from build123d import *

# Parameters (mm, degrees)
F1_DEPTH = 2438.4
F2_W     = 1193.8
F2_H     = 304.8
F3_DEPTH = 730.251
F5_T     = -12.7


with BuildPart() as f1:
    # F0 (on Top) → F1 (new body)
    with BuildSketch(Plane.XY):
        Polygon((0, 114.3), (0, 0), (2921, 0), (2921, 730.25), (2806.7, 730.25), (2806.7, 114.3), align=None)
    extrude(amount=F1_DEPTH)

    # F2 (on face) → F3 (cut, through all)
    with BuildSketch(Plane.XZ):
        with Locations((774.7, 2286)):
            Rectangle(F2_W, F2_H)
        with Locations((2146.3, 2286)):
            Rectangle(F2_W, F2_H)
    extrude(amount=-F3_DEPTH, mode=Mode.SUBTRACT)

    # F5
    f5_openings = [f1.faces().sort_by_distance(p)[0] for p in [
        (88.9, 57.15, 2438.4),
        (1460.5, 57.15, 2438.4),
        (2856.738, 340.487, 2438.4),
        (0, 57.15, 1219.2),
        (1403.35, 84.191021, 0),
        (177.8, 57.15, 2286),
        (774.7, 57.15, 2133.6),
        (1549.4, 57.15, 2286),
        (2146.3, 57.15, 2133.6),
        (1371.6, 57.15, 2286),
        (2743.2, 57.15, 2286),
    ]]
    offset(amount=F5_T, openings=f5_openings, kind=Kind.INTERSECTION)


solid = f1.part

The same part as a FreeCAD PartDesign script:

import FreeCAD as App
import Part
import Sketcher
Q = App.Units.Quantity


def faces_at(feature, points):
    """Names of the faces that lie closest to the given points."""
    faces = feature.Shape.Faces
    near = lambda p: min(range(len(faces)), key=lambda i: faces[i].distToShape(Part.Vertex(*p))[0])
    return sorted({f"Face{near(p) + 1}" for p in points})


def add_polygon(sketch, points):
    """Adds a closed chain of lines whose ends are joined by coincident constraints."""
    first, n = sketch.GeometryCount, len(points)
    for a, b in zip(points, points[1:] + points[:1]):
        sketch.addGeometry(Part.LineSegment(App.Vector(*a, 0), App.Vector(*b, 0)), False)
    for i in range(n):
        sketch.addConstraint(Sketcher.Constraint("Coincident", first + i, 2, first + (i + 1) % n, 1))

doc = App.newDocument("Part")
body = doc.addObject("PartDesign::Body", "Body")

# Sketch on XY plane
sketch1 = body.newObject("Sketcher::SketchObject", "Sketch")
sketch1.AttachmentSupport = (doc.getObject("XY_Plane"), [""])
sketch1.MapMode = "FlatFace"
add_polygon(sketch1, [(0, 114.3), (0, 0), (2921, 0), (2921, 730.25), (2806.7, 730.25), (2806.7, 114.3)])  # lines 0-5
sketch1.addConstraint([
    Sketcher.Constraint("Vertical", 0),
    Sketcher.Constraint("Horizontal", 1),
    Sketcher.Constraint("Vertical", 2),
    Sketcher.Constraint("Horizontal", 3),
    Sketcher.Constraint("Vertical", 4),
    Sketcher.Constraint("Horizontal", 5),
    Sketcher.Constraint("Coincident", 0, 2, -1, 1),
    Sketcher.Constraint("Equal", 3, 0),
    Sketcher.Constraint("DistanceX", 1, 1, 1, 2, Q("115 in")),
    Sketcher.Constraint("DistanceX", 3, 2, 3, 1, Q("4.5 in")),
    Sketcher.Constraint("DistanceY", 2, 1, 2, 2, Q("28.75 in")),
])
pad1 = body.newObject("PartDesign::Pad", "Pad")
pad1.Profile = sketch1
pad1.Length = Q("96 in")

# Sketch on XZ plane
sketch2 = body.newObject("Sketcher::SketchObject", "Sketch001")
sketch2.AttachmentSupport = (doc.getObject("XZ_Plane"), [""])
sketch2.MapMode = "FlatFace"
add_polygon(sketch2, [(177.8, 2438.4), (177.8, 2133.6), (1371.6, 2133.6), (1371.6, 2438.4)])  # lines 0-3
add_polygon(sketch2, [(1549.4, 2438.4), (1549.4, 2133.6), (2743.2, 2133.6), (2743.2, 2438.4)])  # lines 4-7
sketch2.addConstraint([
    Sketcher.Constraint("Vertical", 0),
    Sketcher.Constraint("Horizontal", 1),
    Sketcher.Constraint("Vertical", 2),
    Sketcher.Constraint("Horizontal", 3),
    Sketcher.Constraint("Vertical", 4),
    Sketcher.Constraint("Horizontal", 5),
    Sketcher.Constraint("Vertical", 6),
    Sketcher.Constraint("Horizontal", 7),
    Sketcher.Constraint("Horizontal", 1, 2, 4, 2),
    Sketcher.Constraint("Horizontal", 3, 2, 6, 2),
    Sketcher.Constraint("Equal", 3, 5),
    Sketcher.Constraint("DistanceX", 1, 1, 1, 2, Q("47 in")),
    Sketcher.Constraint("DistanceY", 0, 2, 0, 1, Q("12 in")),
    Sketcher.Constraint("DistanceX", -1, 1, 0, 2, Q("7 in")),
    Sketcher.Constraint("DistanceY", -1, 1, 0, 2, Q("84 in")),
    Sketcher.Constraint("DistanceX", -1, 1, 4, 2, Q("61 in")),
])
pocket1 = body.newObject("PartDesign::Pocket", "Pocket")
pocket1.Profile = sketch2
pocket1.Type = "ThroughAll"
doc.recompute()

thickness = body.newObject("PartDesign::Thickness", "Thickness")
thickness.Base = (pocket1, faces_at(pocket1, [
    (88.9, 57.15, 2438.4),
    (1460.5, 57.15, 2438.4),
    (2832.1, 365.125, 2438.4),
    (0, 57.15, 1219.2),
    (1460.5, 73.025, 0),
    (177.8, 57.15, 2286),
    (774.7, 57.15, 2133.6),
    (1549.4, 57.15, 2286),
    (2146.3, 57.15, 2133.6),
    (1371.6, 57.15, 2286),
    (2743.2, 57.15, 2286),
]))
thickness.Value = Q("0.5 in")
thickness.Reversed = True
thickness.Join = "Intersection"

doc.recompute()
